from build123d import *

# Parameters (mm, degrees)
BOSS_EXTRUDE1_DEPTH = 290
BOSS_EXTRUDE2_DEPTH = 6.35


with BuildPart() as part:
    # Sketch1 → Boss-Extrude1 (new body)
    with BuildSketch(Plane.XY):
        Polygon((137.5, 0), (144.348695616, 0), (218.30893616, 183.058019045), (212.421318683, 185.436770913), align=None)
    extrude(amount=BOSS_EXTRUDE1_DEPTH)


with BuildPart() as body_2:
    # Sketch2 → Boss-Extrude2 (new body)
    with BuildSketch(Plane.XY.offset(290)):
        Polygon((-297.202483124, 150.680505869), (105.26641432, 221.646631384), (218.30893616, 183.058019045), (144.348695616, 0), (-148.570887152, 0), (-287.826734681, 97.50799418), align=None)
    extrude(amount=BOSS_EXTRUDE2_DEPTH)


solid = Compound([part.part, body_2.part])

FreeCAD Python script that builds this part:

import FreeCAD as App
import Part
import Sketcher

V = App.Vector
Q = App.Units.Quantity


def add_polygon(sketch, points):
    """Adds a closed chain of lines whose ends are joined by coincident constraints."""
    first, n = sketch.GeometryCount, len(points)
    for a, b in zip(points, points[1:] + points[:1]):
        sketch.addGeometry(Part.LineSegment(App.Vector(*a, 0), App.Vector(*b, 0)), False)
    for i in range(n):
        sketch.addConstraint(Sketcher.Constraint("Coincident", first + i, 2, first + (i + 1) % n, 1))

doc = App.newDocument("Part")
body = doc.addObject("PartDesign::Body", "Body")

# Sketch on XY plane
sketch1 = body.newObject("Sketcher::SketchObject", "Sketch")
sketch1.AttachmentSupport = (doc.getObject("XY_Plane"), [""])
sketch1.MapMode = "FlatFace"
add_polygon(sketch1, [(138, 0), (144, 0), (218, 183), (212, 185)])  # lines 0-3
sketch1.addConstraint([
    Sketcher.Constraint("Horizontal", 0),
    Sketcher.Constraint("PointOnObject", 0, 2, -1),
    Sketcher.Constraint("Perpendicular", 1, 2),
    Sketcher.Constraint("Perpendicular", 2, 3),
    Sketcher.Constraint("Angle", 1, Q("68 deg")),
    Sketcher.Constraint("Distance", 3, 200.0),
    Sketcher.Constraint("DistanceX", -1, 1, 3, 2, 137.5),
    Sketcher.Constraint("Distance", 2, 6.35),
])
pad1 = body.newObject("PartDesign::Pad", "Pad")
pad1.Profile = sketch1
pad1.Length = 290
body2 = doc.addObject("PartDesign::Body", "Body001")

# Sketch on XY plane
sketch2 = body2.newObject("Sketcher::SketchObject", "Sketch001")
sketch2.AttachmentSupport = (doc.getObject("XY_Plane001"), [""])
sketch2.MapMode = "FlatFace"
sketch2.AttachmentOffset = App.Placement(V(0, 0, 290), App.Rotation())
add_polygon(sketch2, [(105, 222), (-297, 151), (-288, 98), (-149, 0), (144, 0), (218, 183)])  # lines 0-5
sketch2.addConstraint([
    Sketcher.Constraint("Horizontal", 3),
    Sketcher.Constraint("PointOnObject", 2, 2, -1),
    Sketcher.Constraint("Perpendicular", 0, 1),
    Sketcher.Constraint("Angle", 0, Q("-170 deg")),
    Sketcher.Constraint("Angle", 2, Q("-35 deg")),
    Sketcher.Constraint("Angle", 4, Q("68 deg")),
    Sketcher.Constraint("Distance", 2, 170.0),
    Sketcher.Constraint("DistanceX", 2, 2, 5, 2, 253.837301),
    Sketcher.Constraint("Distance", 0, 408.677629),
    Sketcher.Constraint("DistanceX", 3, 1, 3, 2, 292.919583),
    Sketcher.Constraint("DistanceY", -1, 1, 4, 2, 183.058019),
    Sketcher.Constraint("DistanceX", 0, 2, -1, 1, 297.202483),
])
pad2 = body2.newObject("PartDesign::Pad", "Pad001")
pad2.Profile = sketch2
pad2.Length = 6.35

doc.recompute()
